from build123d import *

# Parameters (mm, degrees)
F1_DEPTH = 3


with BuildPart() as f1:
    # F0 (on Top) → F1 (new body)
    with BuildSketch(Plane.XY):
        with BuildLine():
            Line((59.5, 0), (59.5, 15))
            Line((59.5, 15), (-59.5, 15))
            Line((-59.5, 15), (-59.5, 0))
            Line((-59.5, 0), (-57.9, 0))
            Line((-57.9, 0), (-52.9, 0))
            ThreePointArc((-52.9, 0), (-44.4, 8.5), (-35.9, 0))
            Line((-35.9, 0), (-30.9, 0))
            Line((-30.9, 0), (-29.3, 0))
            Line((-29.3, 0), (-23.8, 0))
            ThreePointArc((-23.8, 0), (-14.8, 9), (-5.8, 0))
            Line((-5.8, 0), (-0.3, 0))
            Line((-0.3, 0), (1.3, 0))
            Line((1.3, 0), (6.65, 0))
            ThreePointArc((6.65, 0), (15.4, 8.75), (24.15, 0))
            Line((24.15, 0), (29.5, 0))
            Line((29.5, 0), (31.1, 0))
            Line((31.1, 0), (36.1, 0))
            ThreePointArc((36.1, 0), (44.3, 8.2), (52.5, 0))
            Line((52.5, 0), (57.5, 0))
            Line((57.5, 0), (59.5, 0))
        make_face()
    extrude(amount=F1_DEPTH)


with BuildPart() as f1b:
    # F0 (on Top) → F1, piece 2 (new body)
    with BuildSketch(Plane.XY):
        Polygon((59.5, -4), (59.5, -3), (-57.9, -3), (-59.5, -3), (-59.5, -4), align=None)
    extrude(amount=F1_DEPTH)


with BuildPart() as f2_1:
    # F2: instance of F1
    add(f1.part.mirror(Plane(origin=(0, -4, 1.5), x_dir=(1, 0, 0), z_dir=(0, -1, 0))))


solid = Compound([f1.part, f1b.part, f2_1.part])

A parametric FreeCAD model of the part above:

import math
import FreeCAD as App
import Part
import Sketcher
from FreeCAD import Vector
Q = App.Units.Quantity

doc = App.newDocument("Part")
body = doc.addObject("PartDesign::Body", "Body")

sketch1 = doc.addObject("Sketcher::SketchObject", "Sketch")
body.addObject(sketch1)
sketch1.AttachmentSupport = (doc.XY_Plane, [""])
sketch1.MapMode = "FlatFace"
sketch1.addGeometry(Part.LineSegment(Vector(60, 0, 0), Vector(60, 15, 0)), False)
sketch1.addGeometry(Part.LineSegment(Vector(60, 15, 0), Vector(-60, 15, 0)), False)
sketch1.addGeometry(Part.LineSegment(Vector(-60, 15, 0), Vector(-60, 0, 0)), False)
sketch1.addGeometry(Part.LineSegment(Vector(-60, 0, 0), Vector(-53, 0, 0)), False)
sketch1.addGeometry(Part.ArcOfCircle(Part.Circle(Vector(-44, 0, 0), Vector(0, 0, 1), 8), math.radians(0), math.radians(180)), False)
sketch1.addGeometry(Part.LineSegment(Vector(-36, 0, 0), Vector(-24, 0, 0)), False)
sketch1.addGeometry(Part.ArcOfCircle(Part.Circle(Vector(-15, 0, 0), Vector(0, 0, 1), 9), math.radians(0), math.radians(180)), False)
sketch1.addGeometry(Part.LineSegment(Vector(-6, 0, 0), Vector(7, 0, 0)), False)
sketch1.addGeometry(Part.ArcOfCircle(Part.Circle(Vector(15, 0, 0), Vector(0, 0, 1), 9), math.radians(0), math.radians(180)), False)
sketch1.addGeometry(Part.LineSegment(Vector(24, 0, 0), Vector(36, 0, 0)), False)
sketch1.addGeometry(Part.ArcOfCircle(Part.Circle(Vector(44, 0, 0), Vector(0, 0, 1), 8), math.radians(0), math.radians(180)), False)
sketch1.addGeometry(Part.LineSegment(Vector(52, 0, 0), Vector(60, 0, 0)), False)
sketch1.addConstraint(Sketcher.Constraint("Coincident", 0, 2, 1, 1))
sketch1.addConstraint(Sketcher.Constraint("Coincident", 1, 2, 2, 1))
sketch1.addConstraint(Sketcher.Constraint("Coincident", 2, 2, 3, 1))
sketch1.addConstraint(Sketcher.Constraint("Coincident", 3, 2, 4, 2))
sketch1.addConstraint(Sketcher.Constraint("Coincident", 4, 1, 5, 1))
sketch1.addConstraint(Sketcher.Constraint("Coincident", 5, 2, 6, 2))
sketch1.addConstraint(Sketcher.Constraint("Coincident", 6, 1, 7, 1))
sketch1.addConstraint(Sketcher.Constraint("Coincident", 7, 2, 8, 2))
sketch1.addConstraint(Sketcher.Constraint("Coincident", 8, 1, 9, 1))
sketch1.addConstraint(Sketcher.Constraint("Coincident", 9, 2, 10, 2))
sketch1.addConstraint(Sketcher.Constraint("Coincident", 10, 1, 11, 1))
sketch1.addConstraint(Sketcher.Constraint("Coincident", 11, 2, 0, 1))
sketch1.addConstraint(Sketcher.Constraint("Vertical", 0))
sketch1.addConstraint(Sketcher.Constraint("Horizontal", 1))
sketch1.addConstraint(Sketcher.Constraint("Vertical", 2))
sketch1.addConstraint(Sketcher.Constraint("Horizontal", 3))
sketch1.addConstraint(Sketcher.Constraint("Horizontal", 5))
sketch1.addConstraint(Sketcher.Constraint("Horizontal", 7))
sketch1.addConstraint(Sketcher.Constraint("Horizontal", 9))
sketch1.addConstraint(Sketcher.Constraint("Horizontal", 11))
sketch1.addConstraint(Sketcher.Constraint("Symmetric", 2, 2, 11, 2, -1, 1))
sketch1.addConstraint(Sketcher.Constraint("PointOnObject", 4, 3, -1))
sketch1.addConstraint(Sketcher.Constraint("PointOnObject", 6, 3, -1))
sketch1.addConstraint(Sketcher.Constraint("PointOnObject", 8, 3, -1))
sketch1.addConstraint(Sketcher.Constraint("PointOnObject", 10, 3, -1))
sketch1.addConstraint(Sketcher.Constraint("PointOnObject", 2, 2, -1))
sketch1.addConstraint(Sketcher.Constraint("PointOnObject", 4, 1, -1))
sketch1.addConstraint(Sketcher.Constraint("PointOnObject", 6, 1, -1))
sketch1.addConstraint(Sketcher.Constraint("PointOnObject", 8, 1, -1))
sketch1.addConstraint(Sketcher.Constraint("Radius", 6, Q("9 mm")))
sketch1.addConstraint(Sketcher.Constraint("Radius", 4, Q("8.5 mm")))
sketch1.addConstraint(Sketcher.Constraint("Radius", 10, Q("8.2 mm")))
sketch1.addConstraint(Sketcher.Constraint("DistanceX", 1, 2, 1, 1, Q("119 mm")))
sketch1.addConstraint(Sketcher.Constraint("DistanceX", 11, 1, 11, 2, Q("7 mm")))
sketch1.addConstraint(Sketcher.Constraint("DistanceY", 0, 1, 0, 2, Q("15 mm")))
sketch1.addConstraint(Sketcher.Constraint("Radius", 8, Q("8.75 mm")))
sketch1.addConstraint(Sketcher.Constraint("DistanceX", 3, 1, 3, 2, Q("6.6 mm")))
sketch1.addConstraint(Sketcher.Constraint("DistanceX", 5, 1, 5, 2, Q("12.1 mm")))
sketch1.addConstraint(Sketcher.Constraint("DistanceX", 7, 1, 7, 2, Q("12.45 mm")))
pad1 = doc.addObject("PartDesign::Pad", "Pad")
body.addObject(pad1)
pad1.Profile = sketch1
pad1.Length = 3
body2 = doc.addObject("PartDesign::Body", "Body001")

sketch2 = doc.addObject("Sketcher::SketchObject", "Sketch001")
body2.addObject(sketch2)
sketch2.AttachmentSupport = (doc.getObject("XY_Plane001"), [""])
sketch2.MapMode = "FlatFace"
sketch2.addGeometry(Part.LineSegment(Vector(59.5, -4, 0), Vector(59.5, -3, 0)), False)
sketch2.addGeometry(Part.LineSegment(Vector(59.5, -3, 0), Vector(-59.5, -3, 0)), False)
sketch2.addGeometry(Part.LineSegment(Vector(-59.5, -3, 0), Vector(-59.5, -4, 0)), False)
sketch2.addGeometry(Part.LineSegment(Vector(-59.5, -4, 0), Vector(59.5, -4, 0)), False)
sketch2.addConstraint(Sketcher.Constraint("Coincident", 0, 2, 1, 1))
sketch2.addConstraint(Sketcher.Constraint("Coincident", 1, 2, 2, 1))
sketch2.addConstraint(Sketcher.Constraint("Coincident", 2, 2, 3, 1))
sketch2.addConstraint(Sketcher.Constraint("Coincident", 3, 2, 0, 1))
sketch2.addConstraint(Sketcher.Constraint("Vertical", 0))
sketch2.addConstraint(Sketcher.Constraint("Horizontal", 1))
sketch2.addConstraint(Sketcher.Constraint("Vertical", 2))
sketch2.addConstraint(Sketcher.Constraint("Horizontal", 3))
sketch2.addConstraint(Sketcher.Constraint("DistanceX", 1, 2, 1, 1, Q("119 mm")))
sketch2.addConstraint(Sketcher.Constraint("DistanceY", 0, 1, 0, 2, Q("1 mm")))
sketch2.addConstraint(Sketcher.Constraint("DistanceY", 0, 2, -1, 1, Q("3 mm")))
sketch2.addConstraint(Sketcher.Constraint("DistanceX", -1, 1, 0, 2, Q("59.5 mm")))
pad2 = doc.addObject("PartDesign::Pad", "Pad001")
body2.addObject(pad2)
pad2.Profile = sketch2
pad2.Length = 3
body3 = doc.addObject("PartDesign::Body", "Body002")
doc.recompute()

mirroring = doc.addObject("Part::Mirroring", "Mirroring")
mirroring.Source = body
mirroring.Base = Vector(0, -4, 1.5)
mirroring.Normal = Vector(0, -1, 0)
body3.BaseFeature = mirroring
doc.recompute()
mirroring.Visibility = False

doc.recompute()
